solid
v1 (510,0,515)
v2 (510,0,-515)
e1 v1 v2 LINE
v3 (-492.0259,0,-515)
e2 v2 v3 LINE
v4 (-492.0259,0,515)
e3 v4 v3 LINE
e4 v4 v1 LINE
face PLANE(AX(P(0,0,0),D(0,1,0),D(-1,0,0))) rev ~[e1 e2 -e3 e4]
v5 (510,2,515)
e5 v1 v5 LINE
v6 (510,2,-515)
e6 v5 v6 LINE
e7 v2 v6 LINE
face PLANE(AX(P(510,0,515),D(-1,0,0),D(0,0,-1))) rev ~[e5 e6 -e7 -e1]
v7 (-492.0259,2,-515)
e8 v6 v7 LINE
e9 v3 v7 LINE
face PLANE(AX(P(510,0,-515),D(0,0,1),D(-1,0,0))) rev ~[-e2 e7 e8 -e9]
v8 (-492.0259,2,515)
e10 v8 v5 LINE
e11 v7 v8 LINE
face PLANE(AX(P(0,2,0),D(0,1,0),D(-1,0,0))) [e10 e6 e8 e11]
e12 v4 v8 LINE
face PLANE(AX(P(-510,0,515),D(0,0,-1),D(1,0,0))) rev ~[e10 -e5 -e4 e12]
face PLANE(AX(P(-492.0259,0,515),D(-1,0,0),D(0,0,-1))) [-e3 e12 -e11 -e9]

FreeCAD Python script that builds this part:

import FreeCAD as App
import Part
import Sketcher

V = App.Vector
Q = App.Units.Quantity

doc = App.newDocument("Part")
body = doc.addObject("PartDesign::Body", "Body")

sketch1 = body.newObject("Sketcher::SketchObject", "Sketch")
sketch1.AttachmentSupport = (doc.getObject("XZ_Plane"), [""])
sketch1.MapMode = "FlatFace"
sketch1.addGeometry(Part.LineSegment(V(-510, -515, 0), V(-510, 515, 0)), False)
sketch1.addGeometry(Part.LineSegment(V(-510, 515, 0), V(510, 515, 0)), False)
sketch1.addGeometry(Part.LineSegment(V(510, 515, 0), V(510, -515, 0)), False)
sketch1.addGeometry(Part.LineSegment(V(510, -515, 0), V(-510, -515, 0)), False)
sketch1.addConstraint(Sketcher.Constraint("Coincident", 0, 2, 1, 1))
sketch1.addConstraint(Sketcher.Constraint("Coincident", 1, 2, 2, 1))
sketch1.addConstraint(Sketcher.Constraint("Coincident", 2, 2, 3, 1))
sketch1.addConstraint(Sketcher.Constraint("Coincident", 3, 2, 0, 1))
sketch1.addConstraint(Sketcher.Constraint("Vertical", 0))
sketch1.addConstraint(Sketcher.Constraint("Horizontal", 1))
sketch1.addConstraint(Sketcher.Constraint("Vertical", 2))
sketch1.addConstraint(Sketcher.Constraint("Horizontal", 3))
sketch1.addConstraint(Sketcher.Constraint("Symmetric", 0, 2, 2, 2, -1, 1))
sketch1.addConstraint(Sketcher.Constraint("DistanceX", 1, 1, 1, 2, Q("1020 mm")))
sketch1.addConstraint(Sketcher.Constraint("DistanceY", 0, 1, 0, 2, Q("1030 mm")))
pad1 = body.newObject("PartDesign::Pad", "Pad")
pad1.Profile = sketch1
pad1.Length = 2
pad1.Reversed = True

sketch2 = body.newObject("Sketcher::SketchObject", "Sketch001")
sketch2.AttachmentSupport = (doc.getObject("XZ_Plane"), [""])
sketch2.MapMode = "FlatFace"
sketch2.addGeometry(Part.LineSegment(V(-492, -515, 0), V(-492, 515, 0)), False)
sketch2.addGeometry(Part.LineSegment(V(-492, 515, 0), V(-510, 515, 0)), False)
sketch2.addGeometry(Part.LineSegment(V(-510, 515, 0), V(-510, -515, 0)), False)
sketch2.addGeometry(Part.LineSegment(V(-510, -515, 0), V(-492, -515, 0)), False)
sketch2.addConstraint(Sketcher.Constraint("Coincident", 0, 2, 1, 1))
sketch2.addConstraint(Sketcher.Constraint("Coincident", 1, 2, 2, 1))
sketch2.addConstraint(Sketcher.Constraint("Coincident", 2, 2, 3, 1))
sketch2.addConstraint(Sketcher.Constraint("Coincident", 3, 2, 0, 1))
sketch2.addConstraint(Sketcher.Constraint("Vertical", 0))
sketch2.addConstraint(Sketcher.Constraint("Horizontal", 1))
sketch2.addConstraint(Sketcher.Constraint("Vertical", 2))
sketch2.addConstraint(Sketcher.Constraint("Horizontal", 3))
sketch2.addConstraint(Sketcher.Constraint("DistanceY", 0, 1, 0, 2, Q("1030 mm")))
sketch2.addConstraint(Sketcher.Constraint("DistanceY", -1, 1, 0, 2, Q("515 mm")))
sketch2.addConstraint(Sketcher.Constraint("DistanceX", 1, 2, -1, 1, Q("510 mm")))
sketch2.addConstraint(Sketcher.Constraint("DistanceX", 1, 2, 1, 1, Q("17.974 mm")))
pocket1 = body.newObject("PartDesign::Pocket", "Pocket")
pocket1.Profile = sketch2
pocket1.Type = "ThroughAll"

doc.recompute()
